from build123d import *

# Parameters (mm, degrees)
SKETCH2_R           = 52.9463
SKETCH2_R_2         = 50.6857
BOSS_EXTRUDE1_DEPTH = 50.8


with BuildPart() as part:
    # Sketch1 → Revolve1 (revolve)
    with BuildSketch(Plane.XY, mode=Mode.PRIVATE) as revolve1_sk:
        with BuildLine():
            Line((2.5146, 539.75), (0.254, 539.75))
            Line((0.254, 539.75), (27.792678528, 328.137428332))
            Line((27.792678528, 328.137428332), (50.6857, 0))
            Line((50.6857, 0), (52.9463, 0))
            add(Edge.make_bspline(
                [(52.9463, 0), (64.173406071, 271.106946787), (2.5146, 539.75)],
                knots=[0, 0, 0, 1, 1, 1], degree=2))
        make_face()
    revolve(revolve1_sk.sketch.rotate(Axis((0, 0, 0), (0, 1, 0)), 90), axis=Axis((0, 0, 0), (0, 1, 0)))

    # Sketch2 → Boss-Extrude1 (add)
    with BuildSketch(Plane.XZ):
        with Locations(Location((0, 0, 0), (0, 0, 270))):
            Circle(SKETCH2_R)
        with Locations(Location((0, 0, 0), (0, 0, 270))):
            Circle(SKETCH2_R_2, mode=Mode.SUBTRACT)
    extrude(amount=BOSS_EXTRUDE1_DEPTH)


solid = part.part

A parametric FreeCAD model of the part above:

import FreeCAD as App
import Part
import Sketcher
Q = App.Units.Quantity

doc = App.newDocument("Part")
body = doc.addObject("PartDesign::Body", "Body")

# Sketch on XY plane
sketch1 = body.newObject("Sketcher::SketchObject", "Sketch")
sketch1.AttachmentSupport = (doc.getObject("XY_Plane"), [""])
sketch1.MapMode = "FlatFace"
sketch1.addGeometry([
    Part.LineSegment(App.Vector(2.5146, 539.75, 0), App.Vector(0.254, 539.75, 0)),  # 0
    Part.LineSegment(App.Vector(0.254, 539.75, 0), App.Vector(27.792679, 328.137428, 0)),  # 1
    Part.LineSegment(App.Vector(27.792679, 328.137428, 0), App.Vector(50.6857, 0, 0)),  # 2
    Part.LineSegment(App.Vector(50.6857, 0, 0), App.Vector(52.9463, 0, 0)),  # 3
    Part.BSplineCurve([App.Vector(52.9463, 0, 0), App.Vector(64.173406, 271.106947, 0), App.Vector(2.5146, 539.75, 0)], [3, 3], [0, 1], False, 2, [1, 1, 1], False),  # 4
], False)
sketch1.addConstraint([
    Sketcher.Constraint("Block", 4),
    Sketcher.Constraint("Coincident", 0, 2, 1, 1),
    Sketcher.Constraint("Coincident", 1, 2, 2, 1),
    Sketcher.Constraint("Coincident", 2, 2, 3, 1),
    Sketcher.Constraint("Coincident", 3, 2, 4, 1),
    Sketcher.Constraint("Coincident", 4, 2, 0, 1),
    Sketcher.Constraint("Horizontal", 0),
    Sketcher.Constraint("Horizontal", 3),
    Sketcher.Constraint("Equal", 0, 3),
    Sketcher.Constraint("DistanceX", 0, 2, 0, 1, Q("0.089 in")),
    Sketcher.Constraint("DistanceX", -1, 1, 1, 2, Q("1.0941999 in")),
    Sketcher.Constraint("DistanceY", -1, 1, 1, 2, Q("328.137428 mm")),
])
revolution = body.newObject("PartDesign::Revolution", "Revolution")
revolution.Profile = sketch1
revolution.ReferenceAxis = (sketch1, ["V_Axis"])
revolution.Angle = 360

# Sketch on XZ plane
sketch2 = body.newObject("Sketcher::SketchObject", "Sketch001")
sketch2.AttachmentSupport = (doc.getObject("XZ_Plane"), [""])
sketch2.MapMode = "FlatFace"
sketch2.addGeometry([
    Part.Circle(App.Vector(0, 0, 0), App.Vector(0, 0, 1), 53),
    Part.Circle(App.Vector(0, 0, 0), App.Vector(0, 0, 1), 51),
], False)
sketch2.addConstraint([
    Sketcher.Constraint("Coincident", 0, 3, -1, 1),
    Sketcher.Constraint("Coincident", 1, 3, -1, 1),
    Sketcher.Constraint("Diameter", 0, Q("4.169 in")),
    Sketcher.Constraint("Diameter", 1, Q("3.991 in")),
])
pad1 = body.newObject("PartDesign::Pad", "Pad")
pad1.Profile = sketch2
pad1.Length = Q("2 in")

doc.recompute()
